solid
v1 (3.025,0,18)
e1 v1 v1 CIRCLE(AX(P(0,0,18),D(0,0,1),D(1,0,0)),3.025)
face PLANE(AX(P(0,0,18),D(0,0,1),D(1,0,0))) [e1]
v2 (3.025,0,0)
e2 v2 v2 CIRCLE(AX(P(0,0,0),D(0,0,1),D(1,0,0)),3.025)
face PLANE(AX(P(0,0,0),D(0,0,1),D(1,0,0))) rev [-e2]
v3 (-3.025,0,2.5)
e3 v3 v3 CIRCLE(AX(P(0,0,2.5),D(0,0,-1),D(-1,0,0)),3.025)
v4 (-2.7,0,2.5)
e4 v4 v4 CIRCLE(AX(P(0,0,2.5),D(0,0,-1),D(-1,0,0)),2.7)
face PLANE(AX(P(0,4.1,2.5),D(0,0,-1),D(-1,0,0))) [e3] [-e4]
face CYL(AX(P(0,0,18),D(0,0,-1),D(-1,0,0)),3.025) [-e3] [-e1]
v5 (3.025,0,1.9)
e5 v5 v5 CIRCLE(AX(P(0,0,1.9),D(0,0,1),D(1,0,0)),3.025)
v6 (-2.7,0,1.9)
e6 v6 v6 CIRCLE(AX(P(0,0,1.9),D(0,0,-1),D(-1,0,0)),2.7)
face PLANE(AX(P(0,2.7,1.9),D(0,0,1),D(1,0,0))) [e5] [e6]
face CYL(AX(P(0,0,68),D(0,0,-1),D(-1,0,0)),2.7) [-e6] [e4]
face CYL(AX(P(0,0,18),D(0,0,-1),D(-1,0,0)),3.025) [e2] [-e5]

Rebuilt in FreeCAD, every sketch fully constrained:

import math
import FreeCAD as App
import Part
import Sketcher
from FreeCAD import Vector
Q = App.Units.Quantity

doc = App.newDocument("Part")
body = doc.addObject("PartDesign::Body", "Body")

# Sketch on XY plane
sketch1 = doc.addObject("Sketcher::SketchObject", "Sketch")
body.addObject(sketch1)
sketch1.AttachmentSupport = (doc.XY_Plane, [""])
sketch1.MapMode = "FlatFace"
sketch1.addGeometry(Part.Circle(Vector(0, 0, 0), Vector(0, 0, 1), 3), False)
sketch1.addConstraint([
    Sketcher.Constraint("Coincident", 0, 3, -1, 1),
    Sketcher.Constraint("Diameter", 0, Q("6.05 mm")),
])
pad1 = doc.addObject("PartDesign::Pad", "Pad")
body.addObject(pad1)
pad1.Profile = sketch1
pad1.Length = 18

# Sketch on YZ plane
sketch2 = doc.addObject("Sketcher::SketchObject", "Sketch001")
body.addObject(sketch2)
sketch2.AttachmentSupport = (doc.YZ_Plane, [""])
sketch2.MapMode = "FlatFace"
sketch2.addGeometry([
    Part.LineSegment(Vector(2.7, 2.5, 0), Vector(4.1, 2.5, 0)),  # 0
    Part.ArcOfCircle(Part.Circle(Vector(4.1, 2.4, 0), Vector(0, 0, 1), 0.1), math.radians(0), math.radians(90)),  # 1
    Part.LineSegment(Vector(4.2, 2.4, 0), Vector(4.2, 2, 0)),  # 2
    Part.ArcOfCircle(Part.Circle(Vector(4.1, 2, 0), Vector(0, 0, 1), 0.1), math.radians(-90), math.radians(0)),  # 3
    Part.LineSegment(Vector(4.1, 1.9, 0), Vector(2.7, 1.9, 0)),  # 4
    Part.LineSegment(Vector(2.7, 1.9, 0), Vector(2.7, 2.5, 0)),  # 5
], False)
sketch2.addConstraint([
    Sketcher.Constraint("Tangent", 0, 2, 1, 2),
    Sketcher.Constraint("Tangent", 1, 1, 2, 1),
    Sketcher.Constraint("Tangent", 2, 2, 3, 2),
    Sketcher.Constraint("Tangent", 3, 1, 4, 1),
    Sketcher.Constraint("Coincident", 4, 2, 5, 1),
    Sketcher.Constraint("Coincident", 5, 2, 0, 1),
    Sketcher.Constraint("Horizontal", 0),
    Sketcher.Constraint("Vertical", 2),
    Sketcher.Constraint("Horizontal", 4),
    Sketcher.Constraint("Vertical", 5),
    Sketcher.Constraint("Equal", 1, 3),
    Sketcher.Constraint("Radius", 1, Q("0.1 mm")),
    Sketcher.Constraint("DistanceX", 0, 1, 0, 2, Q("1.4 mm")),
    Sketcher.Constraint("DistanceY", 2, 2, 2, 1, Q("0.4 mm")),
    Sketcher.Constraint("DistanceY", -1, 1, 3, 3, Q("2 mm")),
    Sketcher.Constraint("DistanceX", -1, 1, 1, 3, Q("4.1 mm")),
])
groove = doc.addObject("PartDesign::Groove", "Groove")
body.addObject(groove)
groove.Profile = sketch2
groove.ReferenceAxis = (sketch2, ["V_Axis"])
groove.Angle = 360

doc.recompute()
